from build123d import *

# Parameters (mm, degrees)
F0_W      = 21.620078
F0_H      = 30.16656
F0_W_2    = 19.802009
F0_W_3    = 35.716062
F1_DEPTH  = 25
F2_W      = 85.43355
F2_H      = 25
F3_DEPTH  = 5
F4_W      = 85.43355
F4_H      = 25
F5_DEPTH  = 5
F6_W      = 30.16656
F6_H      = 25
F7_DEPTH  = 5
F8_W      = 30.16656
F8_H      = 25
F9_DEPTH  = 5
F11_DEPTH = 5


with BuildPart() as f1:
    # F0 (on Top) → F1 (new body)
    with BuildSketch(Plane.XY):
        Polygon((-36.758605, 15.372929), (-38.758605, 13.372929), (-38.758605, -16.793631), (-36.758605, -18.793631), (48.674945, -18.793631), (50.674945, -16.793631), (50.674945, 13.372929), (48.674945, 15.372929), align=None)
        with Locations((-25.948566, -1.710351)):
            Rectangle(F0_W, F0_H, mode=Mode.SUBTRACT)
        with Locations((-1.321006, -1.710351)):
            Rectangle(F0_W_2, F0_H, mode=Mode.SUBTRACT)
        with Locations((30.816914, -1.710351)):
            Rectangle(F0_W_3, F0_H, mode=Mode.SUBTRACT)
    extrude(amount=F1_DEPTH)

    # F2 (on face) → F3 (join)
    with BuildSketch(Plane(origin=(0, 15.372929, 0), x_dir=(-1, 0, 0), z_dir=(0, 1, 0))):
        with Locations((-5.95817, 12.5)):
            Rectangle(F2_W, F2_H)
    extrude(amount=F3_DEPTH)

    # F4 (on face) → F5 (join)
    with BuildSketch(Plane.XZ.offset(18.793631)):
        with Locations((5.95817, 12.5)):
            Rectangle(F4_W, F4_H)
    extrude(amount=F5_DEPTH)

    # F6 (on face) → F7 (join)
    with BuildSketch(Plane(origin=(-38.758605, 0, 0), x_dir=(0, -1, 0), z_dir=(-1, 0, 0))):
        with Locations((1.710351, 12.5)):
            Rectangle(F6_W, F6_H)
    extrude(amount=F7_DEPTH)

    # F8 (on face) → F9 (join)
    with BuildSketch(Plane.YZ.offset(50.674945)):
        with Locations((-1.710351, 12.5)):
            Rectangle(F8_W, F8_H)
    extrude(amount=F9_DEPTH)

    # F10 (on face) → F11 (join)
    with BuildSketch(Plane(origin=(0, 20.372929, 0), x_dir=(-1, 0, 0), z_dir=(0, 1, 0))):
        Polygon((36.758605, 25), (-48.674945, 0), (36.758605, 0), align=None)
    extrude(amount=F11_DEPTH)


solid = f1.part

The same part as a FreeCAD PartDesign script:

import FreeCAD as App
import Part
import Sketcher
Q = App.Units.Quantity


def add_polygon(sketch, points):
    """Adds a closed chain of lines whose ends are joined by coincident constraints."""
    first, n = sketch.GeometryCount, len(points)
    for a, b in zip(points, points[1:] + points[:1]):
        sketch.addGeometry(Part.LineSegment(App.Vector(*a, 0), App.Vector(*b, 0)), False)
    for i in range(n):
        sketch.addConstraint(Sketcher.Constraint("Coincident", first + i, 2, first + (i + 1) % n, 1))

doc = App.newDocument("Part")
body = doc.addObject("PartDesign::Body", "Body")

sketch1 = doc.addObject("Sketcher::SketchObject", "Sketch")
body.addObject(sketch1)
sketch1.AttachmentSupport = (doc.XY_Plane, [""])
sketch1.MapMode = "FlatFace"
add_polygon(sketch1, [(-36.8, 15.4), (-38.8, 13.4), (-38.8, -16.8), (-36.8, -18.8), (48.7, -18.8), (50.7, -16.8), (50.7, 13.4), (48.7, 15.4)])
add_polygon(sketch1, [(-15.1, -16.8), (-36.8, -16.8), (-36.8, 13.4), (-15.1, 13.4)])
add_polygon(sketch1, [(8.6, -16.8), (-11.2, -16.8), (-11.2, 13.4), (8.6, 13.4)])
add_polygon(sketch1, [(48.7, -16.8), (13, -16.8), (13, 13.4), (48.7, 13.4)])
sketch1.addConstraint(Sketcher.Constraint("Vertical", 1))
sketch1.addConstraint(Sketcher.Constraint("Horizontal", 3))
sketch1.addConstraint(Sketcher.Constraint("Vertical", 5))
sketch1.addConstraint(Sketcher.Constraint("Horizontal", 7))
sketch1.addConstraint(Sketcher.Constraint("Horizontal", 8))
sketch1.addConstraint(Sketcher.Constraint("Vertical", 9))
sketch1.addConstraint(Sketcher.Constraint("Horizontal", 10))
sketch1.addConstraint(Sketcher.Constraint("Vertical", 11))
sketch1.addConstraint(Sketcher.Constraint("Horizontal", 12))
sketch1.addConstraint(Sketcher.Constraint("Vertical", 13))
sketch1.addConstraint(Sketcher.Constraint("Horizontal", 14))
sketch1.addConstraint(Sketcher.Constraint("Vertical", 15))
sketch1.addConstraint(Sketcher.Constraint("Horizontal", 16))
sketch1.addConstraint(Sketcher.Constraint("Vertical", 17))
sketch1.addConstraint(Sketcher.Constraint("Horizontal", 18))
sketch1.addConstraint(Sketcher.Constraint("Vertical", 19))
sketch1.addConstraint(Sketcher.Constraint("Perpendicular", 0, 2))
sketch1.addConstraint(Sketcher.Constraint("Perpendicular", 2, 4))
sketch1.addConstraint(Sketcher.Constraint("Perpendicular", 4, 6))
sketch1.addConstraint(Sketcher.Constraint("Horizontal", 1, 2, 4, 2))
sketch1.addConstraint(Sketcher.Constraint("Horizontal", 0, 2, 5, 2))
sketch1.addConstraint(Sketcher.Constraint("Horizontal", 4, 2, 8, 2))
sketch1.addConstraint(Sketcher.Constraint("Horizontal", 5, 2, 9, 2))
sketch1.addConstraint(Sketcher.Constraint("Horizontal", 11, 2, 12, 2))
sketch1.addConstraint(Sketcher.Constraint("Horizontal", 10, 2, 13, 2))
sketch1.addConstraint(Sketcher.Constraint("Horizontal", 15, 2, 16, 2))
sketch1.addConstraint(Sketcher.Constraint("Horizontal", 14, 2, 17, 2))
sketch1.addConstraint(Sketcher.Constraint("Vertical", 3, 2, 6, 2))
sketch1.addConstraint(Sketcher.Constraint("Vertical", 2, 2, 7, 2))
sketch1.addConstraint(Sketcher.Constraint("Vertical", 7, 2, 8, 2))
sketch1.addConstraint(Sketcher.Constraint("Vertical", 6, 2, 18, 2))
sketch1.addConstraint(Sketcher.Constraint("DistanceX", 1, 2, 2, 2, Q("2 mm")))
sketch1.addConstraint(Sketcher.Constraint("DistanceX", -1, 1, 14, 2, Q("8.579999 mm")))
sketch1.addConstraint(Sketcher.Constraint("DistanceX", 3, 1, 3, 2, Q("85.43355 mm")))
sketch1.addConstraint(Sketcher.Constraint("DistanceX", 8, 2, 8, 1, Q("21.620078 mm")))
sketch1.addConstraint(Sketcher.Constraint("DistanceX", 12, 2, 12, 1, Q("19.802009 mm")))
sketch1.addConstraint(Sketcher.Constraint("DistanceY", 1, 2, 1, 1, Q("30.16656 mm")))
sketch1.addConstraint(Sketcher.Constraint("DistanceX", 16, 2, 16, 1, Q("35.716062 mm")))
sketch1.addConstraint(Sketcher.Constraint("DistanceY", -1, 1, 0, 2, Q("13.372929 mm")))
sketch1.addConstraint(Sketcher.Constraint("DistanceX", 0, 2, -1, 1, Q("38.758605 mm")))
pad1 = doc.addObject("PartDesign::Pad", "Pad")
body.addObject(pad1)
pad1.Profile = sketch1
pad1.Length = 25

sketch2 = doc.addObject("Sketcher::SketchObject", "Sketch001")
body.addObject(sketch2)
sketch2.AttachmentSupport = (doc.XZ_Plane, [""])
sketch2.MapMode = "FlatFace"
sketch2.AttachmentOffset = App.Placement(App.Vector(0, 0, -15.372929), App.Rotation())
add_polygon(sketch2, [(49, 25), (49, 0), (-37, 0), (-37, 25)])
sketch2.addConstraint(Sketcher.Constraint("Vertical", 0))
sketch2.addConstraint(Sketcher.Constraint("Horizontal", 1))
sketch2.addConstraint(Sketcher.Constraint("Vertical", 2))
sketch2.addConstraint(Sketcher.Constraint("Horizontal", 3))
sketch2.addConstraint(Sketcher.Constraint("PointOnObject", 0, 2, -1))
sketch2.addConstraint(Sketcher.Constraint("DistanceY", 0, 2, 0, 1, Q("25 mm")))
sketch2.addConstraint(Sketcher.Constraint("DistanceX", 1, 2, 1, 1, Q("85.43355 mm")))
sketch2.addConstraint(Sketcher.Constraint("DistanceX", -1, 1, 0, 2, Q("48.674945 mm")))
pad2 = doc.addObject("PartDesign::Pad", "Pad001")
body.addObject(pad2)
pad2.Profile = sketch2
pad2.Length = 5
pad2.Reversed = True

sketch3 = doc.addObject("Sketcher::SketchObject", "Sketch002")
body.addObject(sketch3)
sketch3.AttachmentSupport = (doc.XZ_Plane, [""])
sketch3.MapMode = "FlatFace"
sketch3.AttachmentOffset = App.Placement(App.Vector(0, 0, 18.793631), App.Rotation())
add_polygon(sketch3, [(-37, 25), (-37, 0), (49, 0), (49, 25)])
sketch3.addConstraint(Sketcher.Constraint("Vertical", 0))
sketch3.addConstraint(Sketcher.Constraint("Horizontal", 1))
sketch3.addConstraint(Sketcher.Constraint("Vertical", 2))
sketch3.addConstraint(Sketcher.Constraint("Horizontal", 3))
sketch3.addConstraint(Sketcher.Constraint("PointOnObject", 0, 2, -1))
sketch3.addConstraint(Sketcher.Constraint("DistanceY", 0, 2, 0, 1, Q("25 mm")))
sketch3.addConstraint(Sketcher.Constraint("DistanceX", 1, 1, 1, 2, Q("85.43355 mm")))
sketch3.addConstraint(Sketcher.Constraint("DistanceX", 0, 2, -1, 1, Q("36.758605 mm")))
pad3 = doc.addObject("PartDesign::Pad", "Pad002")
body.addObject(pad3)
pad3.Profile = sketch3
pad3.Length = 5

sketch4 = doc.addObject("Sketcher::SketchObject", "Sketch003")
body.addObject(sketch4)
sketch4.AttachmentSupport = (doc.YZ_Plane, [""])
sketch4.MapMode = "FlatFace"
sketch4.AttachmentOffset = App.Placement(App.Vector(0, 0, -38.758605), App.Rotation())
add_polygon(sketch4, [(13, 25), (13, 0), (-17, 0), (-17, 25)])
sketch4.addConstraint(Sketcher.Constraint("Vertical", 0))
sketch4.addConstraint(Sketcher.Constraint("Horizontal", 1))
sketch4.addConstraint(Sketcher.Constraint("Vertical", 2))
sketch4.addConstraint(Sketcher.Constraint("Horizontal", 3))
sketch4.addConstraint(Sketcher.Constraint("PointOnObject", 0, 2, -1))
sketch4.addConstraint(Sketcher.Constraint("DistanceY", 0, 2, 0, 1, Q("25 mm")))
sketch4.addConstraint(Sketcher.Constraint("DistanceX", 1, 2, 1, 1, Q("30.16656 mm")))
sketch4.addConstraint(Sketcher.Constraint("DistanceX", -1, 1, 0, 2, Q("13.372929 mm")))
pad4 = doc.addObject("PartDesign::Pad", "Pad003")
body.addObject(pad4)
pad4.Profile = sketch4
pad4.Length = 5
pad4.Reversed = True

sketch5 = doc.addObject("Sketcher::SketchObject", "Sketch004")
body.addObject(sketch5)
sketch5.AttachmentSupport = (doc.YZ_Plane, [""])
sketch5.MapMode = "FlatFace"
sketch5.AttachmentOffset = App.Placement(App.Vector(0, 0, 50.674945), App.Rotation())
add_polygon(sketch5, [(-17, 25), (-17, 0), (13, 0), (13, 25)])
sketch5.addConstraint(Sketcher.Constraint("Vertical", 0))
sketch5.addConstraint(Sketcher.Constraint("Horizontal", 1))
sketch5.addConstraint(Sketcher.Constraint("Vertical", 2))
sketch5.addConstraint(Sketcher.Constraint("Horizontal", 3))
sketch5.addConstraint(Sketcher.Constraint("PointOnObject", 0, 2, -1))
sketch5.addConstraint(Sketcher.Constraint("DistanceY", 0, 2, 0, 1, Q("25 mm")))
sketch5.addConstraint(Sketcher.Constraint("DistanceX", 1, 1, 1, 2, Q("30.16656 mm")))
sketch5.addConstraint(Sketcher.Constraint("DistanceX", 0, 2, -1, 1, Q("16.793631 mm")))
pad5 = doc.addObject("PartDesign::Pad", "Pad004")
body.addObject(pad5)
pad5.Profile = sketch5
pad5.Length = 5

sketch6 = doc.addObject("Sketcher::SketchObject", "Sketch005")
body.addObject(sketch6)
sketch6.AttachmentSupport = (doc.XZ_Plane, [""])
sketch6.MapMode = "FlatFace"
sketch6.AttachmentOffset = App.Placement(App.Vector(0, 0, -20.372929), App.Rotation())
add_polygon(sketch6, [(-37, 25), (49, 0), (-37, 0)])
sketch6.addConstraint(Sketcher.Constraint("Horizontal", 1))
sketch6.addConstraint(Sketcher.Constraint("Vertical", 2))
sketch6.addConstraint(Sketcher.Constraint("PointOnObject", 0, 2, -1))
sketch6.addConstraint(Sketcher.Constraint("DistanceY", 2, 1, 2, 2, Q("25 mm")))
sketch6.addConstraint(Sketcher.Constraint("DistanceX", 1, 2, 1, 1, Q("85.43355 mm")))
sketch6.addConstraint(Sketcher.Constraint("DistanceX", -1, 1, 0, 2, Q("48.674945 mm")))
pad6 = doc.addObject("PartDesign::Pad", "Pad005")
body.addObject(pad6)
pad6.Profile = sketch6
pad6.Length = 5
pad6.Reversed = True

doc.recompute()
